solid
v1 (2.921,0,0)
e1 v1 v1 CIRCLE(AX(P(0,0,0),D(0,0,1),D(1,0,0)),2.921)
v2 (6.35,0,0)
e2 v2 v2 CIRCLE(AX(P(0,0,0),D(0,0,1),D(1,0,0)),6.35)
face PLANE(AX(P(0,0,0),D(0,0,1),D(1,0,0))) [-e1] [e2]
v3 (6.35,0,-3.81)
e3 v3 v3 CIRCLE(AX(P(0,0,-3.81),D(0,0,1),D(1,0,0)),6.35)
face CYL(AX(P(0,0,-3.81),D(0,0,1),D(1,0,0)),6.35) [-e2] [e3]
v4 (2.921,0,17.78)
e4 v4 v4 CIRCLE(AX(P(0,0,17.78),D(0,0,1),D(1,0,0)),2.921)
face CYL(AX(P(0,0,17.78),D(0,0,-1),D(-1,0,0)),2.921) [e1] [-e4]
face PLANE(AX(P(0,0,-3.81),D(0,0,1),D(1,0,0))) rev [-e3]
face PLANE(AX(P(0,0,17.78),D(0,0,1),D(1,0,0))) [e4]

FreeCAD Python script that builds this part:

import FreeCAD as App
import Part
import Sketcher

V = App.Vector
Q = App.Units.Quantity

doc = App.newDocument("Part")
body = doc.addObject("PartDesign::Body", "Body")

# Sketch on XY plane
sketch1 = body.newObject("Sketcher::SketchObject", "Sketch")
sketch1.AttachmentSupport = (doc.getObject("XY_Plane"), [""])
sketch1.MapMode = "FlatFace"
sketch1.addGeometry(Part.Circle(V(0, 0, 0), V(0, 0, 1), 2.921), False)
sketch1.addConstraint([
    Sketcher.Constraint("Coincident", 0, 3, -1, 1),
    Sketcher.Constraint("Diameter", 0, Q("0.23 in")),
])
pad1 = body.newObject("PartDesign::Pad", "Pad")
pad1.Profile = sketch1
pad1.Length = Q("0.7 in")

# Sketch on XY plane
sketch2 = body.newObject("Sketcher::SketchObject", "Sketch001")
sketch2.AttachmentSupport = (doc.getObject("XY_Plane"), [""])
sketch2.MapMode = "FlatFace"
sketch2.addGeometry(Part.Circle(V(0, 0, 0), V(0, 0, 1), 6.35), False)
sketch2.addConstraint([
    Sketcher.Constraint("Coincident", 0, 3, -1, 1),
    Sketcher.Constraint("Diameter", 0, Q("0.5 in")),
])
pad2 = body.newObject("PartDesign::Pad", "Pad001")
pad2.Profile = sketch2
pad2.Length = Q("0.15 in")
pad2.Reversed = True

doc.recompute()
